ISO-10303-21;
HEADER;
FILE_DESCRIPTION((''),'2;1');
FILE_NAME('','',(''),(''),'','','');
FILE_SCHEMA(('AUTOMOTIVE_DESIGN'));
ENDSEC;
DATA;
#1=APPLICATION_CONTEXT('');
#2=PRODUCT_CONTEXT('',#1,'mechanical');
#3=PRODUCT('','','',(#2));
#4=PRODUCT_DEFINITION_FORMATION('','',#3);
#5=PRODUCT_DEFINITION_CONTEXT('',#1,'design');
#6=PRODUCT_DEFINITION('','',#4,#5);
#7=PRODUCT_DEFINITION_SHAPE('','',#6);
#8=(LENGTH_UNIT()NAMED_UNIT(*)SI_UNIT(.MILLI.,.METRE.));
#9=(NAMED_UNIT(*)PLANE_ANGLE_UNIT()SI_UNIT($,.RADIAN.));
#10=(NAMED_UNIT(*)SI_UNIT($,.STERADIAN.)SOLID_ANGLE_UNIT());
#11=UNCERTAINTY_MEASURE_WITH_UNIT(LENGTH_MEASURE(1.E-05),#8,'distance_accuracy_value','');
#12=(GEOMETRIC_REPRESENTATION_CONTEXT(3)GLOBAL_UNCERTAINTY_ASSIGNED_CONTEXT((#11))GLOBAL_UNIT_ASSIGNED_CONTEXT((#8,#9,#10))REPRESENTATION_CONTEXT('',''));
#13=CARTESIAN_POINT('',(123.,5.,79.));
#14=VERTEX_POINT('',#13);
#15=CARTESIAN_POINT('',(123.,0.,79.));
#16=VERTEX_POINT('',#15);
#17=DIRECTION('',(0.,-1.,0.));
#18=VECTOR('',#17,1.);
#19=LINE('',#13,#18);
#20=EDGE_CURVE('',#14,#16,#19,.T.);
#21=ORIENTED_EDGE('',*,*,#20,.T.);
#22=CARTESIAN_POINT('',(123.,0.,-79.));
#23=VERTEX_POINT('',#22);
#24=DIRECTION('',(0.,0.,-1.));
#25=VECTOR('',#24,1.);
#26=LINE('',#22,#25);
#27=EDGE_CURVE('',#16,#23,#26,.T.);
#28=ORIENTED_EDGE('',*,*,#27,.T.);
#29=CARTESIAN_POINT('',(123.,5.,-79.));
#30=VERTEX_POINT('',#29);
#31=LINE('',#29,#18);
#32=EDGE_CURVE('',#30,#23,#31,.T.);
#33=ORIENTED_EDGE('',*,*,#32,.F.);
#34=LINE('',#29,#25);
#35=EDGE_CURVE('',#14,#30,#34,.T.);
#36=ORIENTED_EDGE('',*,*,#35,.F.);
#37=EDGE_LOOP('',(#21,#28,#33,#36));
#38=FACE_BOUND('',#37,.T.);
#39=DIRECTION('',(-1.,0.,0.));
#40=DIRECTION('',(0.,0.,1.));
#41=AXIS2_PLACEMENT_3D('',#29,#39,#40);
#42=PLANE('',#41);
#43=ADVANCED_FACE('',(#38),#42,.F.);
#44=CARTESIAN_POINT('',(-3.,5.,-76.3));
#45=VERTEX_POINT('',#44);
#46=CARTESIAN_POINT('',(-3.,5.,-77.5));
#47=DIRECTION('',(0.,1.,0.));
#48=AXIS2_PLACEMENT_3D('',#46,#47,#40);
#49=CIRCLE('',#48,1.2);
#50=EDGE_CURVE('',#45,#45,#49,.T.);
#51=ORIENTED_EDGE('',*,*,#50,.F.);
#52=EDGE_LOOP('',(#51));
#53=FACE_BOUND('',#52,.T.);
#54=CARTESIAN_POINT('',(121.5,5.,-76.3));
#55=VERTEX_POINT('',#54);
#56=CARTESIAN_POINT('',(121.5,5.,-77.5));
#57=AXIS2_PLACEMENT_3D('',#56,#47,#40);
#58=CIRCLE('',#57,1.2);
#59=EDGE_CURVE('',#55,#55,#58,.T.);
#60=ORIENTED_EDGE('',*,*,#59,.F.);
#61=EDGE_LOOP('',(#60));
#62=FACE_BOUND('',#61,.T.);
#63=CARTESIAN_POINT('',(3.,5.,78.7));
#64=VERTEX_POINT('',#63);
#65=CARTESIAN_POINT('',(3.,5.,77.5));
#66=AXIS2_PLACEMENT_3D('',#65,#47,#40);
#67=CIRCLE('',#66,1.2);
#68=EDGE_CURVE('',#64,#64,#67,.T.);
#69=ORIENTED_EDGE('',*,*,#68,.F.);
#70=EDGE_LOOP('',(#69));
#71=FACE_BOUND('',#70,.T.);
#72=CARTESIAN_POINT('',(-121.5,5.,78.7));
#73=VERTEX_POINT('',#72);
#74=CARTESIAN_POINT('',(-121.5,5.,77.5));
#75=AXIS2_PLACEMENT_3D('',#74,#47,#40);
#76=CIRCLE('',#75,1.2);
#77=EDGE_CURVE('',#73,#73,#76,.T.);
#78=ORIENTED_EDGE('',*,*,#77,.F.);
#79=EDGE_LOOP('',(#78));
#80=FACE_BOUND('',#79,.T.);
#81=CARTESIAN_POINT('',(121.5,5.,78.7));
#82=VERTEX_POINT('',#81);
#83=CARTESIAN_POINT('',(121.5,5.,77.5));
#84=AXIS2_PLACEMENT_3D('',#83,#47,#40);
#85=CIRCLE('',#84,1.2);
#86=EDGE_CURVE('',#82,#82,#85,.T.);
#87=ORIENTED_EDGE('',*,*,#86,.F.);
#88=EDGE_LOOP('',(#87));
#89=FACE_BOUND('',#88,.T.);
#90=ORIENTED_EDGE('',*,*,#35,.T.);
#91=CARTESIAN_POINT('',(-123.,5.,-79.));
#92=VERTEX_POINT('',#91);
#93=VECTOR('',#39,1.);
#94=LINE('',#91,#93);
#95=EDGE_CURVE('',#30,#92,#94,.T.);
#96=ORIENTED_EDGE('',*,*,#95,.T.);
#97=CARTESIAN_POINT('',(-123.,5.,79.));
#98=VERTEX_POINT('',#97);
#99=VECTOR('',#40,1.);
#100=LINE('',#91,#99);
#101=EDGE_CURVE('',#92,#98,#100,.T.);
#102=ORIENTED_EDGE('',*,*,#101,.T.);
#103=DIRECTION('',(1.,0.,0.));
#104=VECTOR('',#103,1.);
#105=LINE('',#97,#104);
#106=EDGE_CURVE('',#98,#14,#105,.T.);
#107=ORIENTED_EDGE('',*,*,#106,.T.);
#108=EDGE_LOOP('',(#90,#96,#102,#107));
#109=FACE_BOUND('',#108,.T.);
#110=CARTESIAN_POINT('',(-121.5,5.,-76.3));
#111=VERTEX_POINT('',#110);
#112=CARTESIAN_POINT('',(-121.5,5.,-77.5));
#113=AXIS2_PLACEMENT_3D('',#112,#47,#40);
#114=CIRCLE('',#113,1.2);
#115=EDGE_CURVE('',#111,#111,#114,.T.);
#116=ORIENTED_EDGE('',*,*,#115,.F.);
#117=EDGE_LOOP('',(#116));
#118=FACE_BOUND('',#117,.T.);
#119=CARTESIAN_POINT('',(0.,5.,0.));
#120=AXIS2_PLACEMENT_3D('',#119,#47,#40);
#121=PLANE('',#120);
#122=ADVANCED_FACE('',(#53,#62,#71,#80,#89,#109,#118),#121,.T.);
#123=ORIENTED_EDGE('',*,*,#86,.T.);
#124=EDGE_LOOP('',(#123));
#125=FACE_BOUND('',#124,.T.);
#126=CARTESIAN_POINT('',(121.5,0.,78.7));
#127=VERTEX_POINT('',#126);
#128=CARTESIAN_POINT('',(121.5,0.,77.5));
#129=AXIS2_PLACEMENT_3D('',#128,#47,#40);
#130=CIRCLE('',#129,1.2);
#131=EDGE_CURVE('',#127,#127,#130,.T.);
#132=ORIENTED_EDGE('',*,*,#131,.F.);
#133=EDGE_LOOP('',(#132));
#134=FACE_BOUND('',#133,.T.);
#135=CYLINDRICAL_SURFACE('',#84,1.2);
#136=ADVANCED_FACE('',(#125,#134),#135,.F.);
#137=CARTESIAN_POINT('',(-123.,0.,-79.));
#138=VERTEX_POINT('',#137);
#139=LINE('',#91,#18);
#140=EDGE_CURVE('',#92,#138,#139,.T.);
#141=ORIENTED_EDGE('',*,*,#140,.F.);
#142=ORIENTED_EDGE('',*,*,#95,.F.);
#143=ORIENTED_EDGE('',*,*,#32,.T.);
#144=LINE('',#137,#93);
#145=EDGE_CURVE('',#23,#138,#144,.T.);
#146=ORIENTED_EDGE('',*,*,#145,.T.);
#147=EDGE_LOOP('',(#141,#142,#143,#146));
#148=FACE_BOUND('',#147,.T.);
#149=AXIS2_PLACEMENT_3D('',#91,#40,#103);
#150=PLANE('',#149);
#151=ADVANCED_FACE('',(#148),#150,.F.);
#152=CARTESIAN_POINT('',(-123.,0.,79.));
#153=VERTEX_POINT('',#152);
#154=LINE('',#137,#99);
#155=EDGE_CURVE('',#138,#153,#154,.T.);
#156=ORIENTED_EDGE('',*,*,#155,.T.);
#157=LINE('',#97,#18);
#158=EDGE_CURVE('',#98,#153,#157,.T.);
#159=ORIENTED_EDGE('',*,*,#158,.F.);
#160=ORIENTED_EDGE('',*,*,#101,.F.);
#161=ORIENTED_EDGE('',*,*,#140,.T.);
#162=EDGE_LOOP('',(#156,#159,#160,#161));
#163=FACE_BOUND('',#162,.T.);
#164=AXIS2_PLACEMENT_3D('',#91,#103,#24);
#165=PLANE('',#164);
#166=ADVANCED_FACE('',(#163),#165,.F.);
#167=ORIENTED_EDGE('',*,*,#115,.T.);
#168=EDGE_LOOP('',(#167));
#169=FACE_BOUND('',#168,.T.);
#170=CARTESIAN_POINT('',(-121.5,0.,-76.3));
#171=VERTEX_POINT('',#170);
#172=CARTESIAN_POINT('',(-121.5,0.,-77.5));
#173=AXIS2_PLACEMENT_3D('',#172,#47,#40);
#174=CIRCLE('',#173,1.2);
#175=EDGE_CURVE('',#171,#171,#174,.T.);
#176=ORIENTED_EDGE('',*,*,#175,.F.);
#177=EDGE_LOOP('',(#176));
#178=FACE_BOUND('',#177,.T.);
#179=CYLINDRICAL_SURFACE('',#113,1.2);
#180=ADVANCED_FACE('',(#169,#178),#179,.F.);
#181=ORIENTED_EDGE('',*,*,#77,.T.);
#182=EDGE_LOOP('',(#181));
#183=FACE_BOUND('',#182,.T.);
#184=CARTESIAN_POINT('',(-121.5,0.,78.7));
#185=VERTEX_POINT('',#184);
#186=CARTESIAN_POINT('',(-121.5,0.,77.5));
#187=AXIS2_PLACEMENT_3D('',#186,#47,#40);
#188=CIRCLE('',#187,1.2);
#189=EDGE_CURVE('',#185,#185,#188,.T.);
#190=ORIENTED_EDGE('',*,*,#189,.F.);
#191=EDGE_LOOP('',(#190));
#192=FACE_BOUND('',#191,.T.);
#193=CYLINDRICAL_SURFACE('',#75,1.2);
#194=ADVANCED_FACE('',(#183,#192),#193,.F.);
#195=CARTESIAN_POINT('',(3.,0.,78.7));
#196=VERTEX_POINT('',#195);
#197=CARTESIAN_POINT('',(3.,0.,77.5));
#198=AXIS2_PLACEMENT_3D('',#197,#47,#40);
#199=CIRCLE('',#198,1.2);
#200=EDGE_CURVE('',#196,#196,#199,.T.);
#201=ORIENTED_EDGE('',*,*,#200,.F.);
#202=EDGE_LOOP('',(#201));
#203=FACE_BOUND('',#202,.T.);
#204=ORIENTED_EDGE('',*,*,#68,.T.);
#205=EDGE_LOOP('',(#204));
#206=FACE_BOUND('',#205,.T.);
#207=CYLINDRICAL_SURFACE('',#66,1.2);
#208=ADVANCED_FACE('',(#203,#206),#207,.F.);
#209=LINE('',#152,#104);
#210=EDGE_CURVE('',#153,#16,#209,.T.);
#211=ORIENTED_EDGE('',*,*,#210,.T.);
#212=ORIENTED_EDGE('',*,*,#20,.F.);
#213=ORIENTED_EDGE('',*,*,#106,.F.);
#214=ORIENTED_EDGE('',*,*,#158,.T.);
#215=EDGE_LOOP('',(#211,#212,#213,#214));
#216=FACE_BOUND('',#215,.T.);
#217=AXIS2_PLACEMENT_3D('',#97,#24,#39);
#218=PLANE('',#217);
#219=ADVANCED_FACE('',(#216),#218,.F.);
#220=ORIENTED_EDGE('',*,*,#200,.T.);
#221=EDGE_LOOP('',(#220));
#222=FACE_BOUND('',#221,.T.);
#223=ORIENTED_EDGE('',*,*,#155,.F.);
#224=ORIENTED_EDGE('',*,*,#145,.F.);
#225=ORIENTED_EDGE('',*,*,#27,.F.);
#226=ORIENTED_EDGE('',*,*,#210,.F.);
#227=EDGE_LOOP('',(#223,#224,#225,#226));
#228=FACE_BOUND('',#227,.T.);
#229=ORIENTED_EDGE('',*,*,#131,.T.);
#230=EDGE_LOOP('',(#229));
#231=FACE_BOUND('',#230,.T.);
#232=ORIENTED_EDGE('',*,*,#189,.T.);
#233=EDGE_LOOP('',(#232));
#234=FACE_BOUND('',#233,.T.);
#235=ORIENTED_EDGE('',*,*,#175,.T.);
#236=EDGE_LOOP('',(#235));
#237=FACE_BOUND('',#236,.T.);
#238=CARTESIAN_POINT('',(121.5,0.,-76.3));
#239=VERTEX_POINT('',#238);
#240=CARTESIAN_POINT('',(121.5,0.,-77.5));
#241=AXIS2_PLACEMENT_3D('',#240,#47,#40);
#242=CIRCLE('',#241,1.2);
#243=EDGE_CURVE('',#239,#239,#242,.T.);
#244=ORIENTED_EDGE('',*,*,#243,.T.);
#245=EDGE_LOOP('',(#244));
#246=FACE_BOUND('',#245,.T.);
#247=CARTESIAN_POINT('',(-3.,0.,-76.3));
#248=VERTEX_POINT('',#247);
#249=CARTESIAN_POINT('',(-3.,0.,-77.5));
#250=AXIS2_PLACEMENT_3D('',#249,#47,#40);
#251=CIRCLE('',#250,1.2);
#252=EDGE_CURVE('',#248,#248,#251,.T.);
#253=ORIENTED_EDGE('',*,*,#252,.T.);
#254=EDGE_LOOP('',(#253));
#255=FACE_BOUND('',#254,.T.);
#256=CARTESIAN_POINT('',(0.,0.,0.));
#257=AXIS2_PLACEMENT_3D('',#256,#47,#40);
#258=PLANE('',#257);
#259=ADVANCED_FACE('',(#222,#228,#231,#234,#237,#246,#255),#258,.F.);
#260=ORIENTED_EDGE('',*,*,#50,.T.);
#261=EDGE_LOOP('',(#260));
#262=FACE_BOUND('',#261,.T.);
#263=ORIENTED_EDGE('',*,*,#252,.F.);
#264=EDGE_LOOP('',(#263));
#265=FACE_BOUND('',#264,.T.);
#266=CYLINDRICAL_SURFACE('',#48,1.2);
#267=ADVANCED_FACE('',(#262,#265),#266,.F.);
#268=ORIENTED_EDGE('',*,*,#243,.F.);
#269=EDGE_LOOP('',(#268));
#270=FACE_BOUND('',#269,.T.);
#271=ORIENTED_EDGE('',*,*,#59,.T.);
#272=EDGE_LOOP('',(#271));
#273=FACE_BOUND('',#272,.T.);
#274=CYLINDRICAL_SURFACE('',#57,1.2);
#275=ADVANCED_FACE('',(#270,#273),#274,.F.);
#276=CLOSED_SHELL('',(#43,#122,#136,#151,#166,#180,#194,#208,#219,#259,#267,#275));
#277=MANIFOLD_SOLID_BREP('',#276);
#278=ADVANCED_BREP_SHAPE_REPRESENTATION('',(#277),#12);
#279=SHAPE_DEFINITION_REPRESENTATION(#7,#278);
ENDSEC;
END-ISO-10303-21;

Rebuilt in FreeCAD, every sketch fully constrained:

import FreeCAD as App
import Part
import Sketcher

V = App.Vector


def add_polygon(sketch, points):
    """Adds a closed chain of lines whose ends are joined by coincident constraints."""
    first, n = sketch.GeometryCount, len(points)
    for a, b in zip(points, points[1:] + points[:1]):
        sketch.addGeometry(Part.LineSegment(App.Vector(*a, 0), App.Vector(*b, 0)), False)
    for i in range(n):
        sketch.addConstraint(Sketcher.Constraint("Coincident", first + i, 2, first + (i + 1) % n, 1))

doc = App.newDocument("Part")
body = doc.addObject("PartDesign::Body", "Body")

sketch1 = body.newObject("Sketcher::SketchObject", "Sketch")
sketch1.AttachmentSupport = (doc.getObject("XZ_Plane"), [""])
sketch1.MapMode = "FlatFace"
add_polygon(sketch1, [(-123, -79), (-123, 79), (123, 79), (123, -79)])
sketch1.addConstraint(Sketcher.Constraint("Vertical", 0))
sketch1.addConstraint(Sketcher.Constraint("Horizontal", 1))
sketch1.addConstraint(Sketcher.Constraint("Vertical", 2))
sketch1.addConstraint(Sketcher.Constraint("Horizontal", 3))
sketch1.addConstraint(Sketcher.Constraint("Symmetric", 0, 2, 2, 2, -1, 1))
sketch1.addConstraint(Sketcher.Constraint("DistanceX", 1, 1, 1, 2, 246.0))
sketch1.addConstraint(Sketcher.Constraint("DistanceY", 0, 1, 0, 2, 158.0))
pad1 = body.newObject("PartDesign::Pad", "Pad")
pad1.Profile = sketch1
pad1.Length = 5
pad1.Reversed = True

sketch2 = body.newObject("Sketcher::SketchObject", "Sketch001")
sketch2.AttachmentSupport = (doc.getObject("XZ_Plane"), [""])
sketch2.MapMode = "FlatFace"
sketch2.AttachmentOffset = App.Placement(V(0, 0, -5), App.Rotation())
sketch2.addGeometry(Part.Circle(V(-121.5, -77.5, 0), V(0, 0, 1), 1.2), False)
sketch2.addGeometry(Part.Circle(V(-3, -77.5, 0), V(0, 0, 1), 1.2), False)
sketch2.addGeometry(Part.Circle(V(121.5, -77.5, 0), V(0, 0, 1), 1.2), False)
sketch2.addGeometry(Part.Circle(V(121.5, 77.5, 0), V(0, 0, 1), 1.2), False)
sketch2.addGeometry(Part.Circle(V(3, 77.5, 0), V(0, 0, 1), 1.2), False)
sketch2.addGeometry(Part.Circle(V(-121.5, 77.5, 0), V(0, 0, 1), 1.2), False)
sketch2.addConstraint(Sketcher.Constraint("Equal", 0, 1))
sketch2.addConstraint(Sketcher.Constraint("Equal", 1, 2))
sketch2.addConstraint(Sketcher.Constraint("Equal", 2, 3))
sketch2.addConstraint(Sketcher.Constraint("Equal", 3, 4))
sketch2.addConstraint(Sketcher.Constraint("Equal", 4, 5))
sketch2.addConstraint(Sketcher.Constraint("Symmetric", 0, 3, 3, 3, -1, 1))
sketch2.addConstraint(Sketcher.Constraint("Symmetric", 1, 3, 4, 3, -1, 1))
sketch2.addConstraint(Sketcher.Constraint("Symmetric", 2, 3, 5, 3, -1, 1))
sketch2.addConstraint(Sketcher.Constraint("Symmetric", 0, 3, 2, 3, -2))
sketch2.addConstraint(Sketcher.Constraint("Horizontal", 0, 3, 1, 3))
sketch2.addConstraint(Sketcher.Constraint("Diameter", 0, 2.4))
sketch2.addConstraint(Sketcher.Constraint("DistanceX", 1, 3, -1, 1, 3.0))
sketch2.addConstraint(Sketcher.Constraint("DistanceX", 0, 3, 2, 3, 243.0))
sketch2.addConstraint(Sketcher.Constraint("DistanceY", 2, 3, 3, 3, 155.0))
doc.recompute()
hole = body.newObject("PartDesign::Hole", "Hole")
hole.Profile = sketch2
hole.ThreadType = "None"
hole.Diameter = 2.4
hole.DepthType = "ThroughAll"
hole.Reversed = True

doc.recompute()
